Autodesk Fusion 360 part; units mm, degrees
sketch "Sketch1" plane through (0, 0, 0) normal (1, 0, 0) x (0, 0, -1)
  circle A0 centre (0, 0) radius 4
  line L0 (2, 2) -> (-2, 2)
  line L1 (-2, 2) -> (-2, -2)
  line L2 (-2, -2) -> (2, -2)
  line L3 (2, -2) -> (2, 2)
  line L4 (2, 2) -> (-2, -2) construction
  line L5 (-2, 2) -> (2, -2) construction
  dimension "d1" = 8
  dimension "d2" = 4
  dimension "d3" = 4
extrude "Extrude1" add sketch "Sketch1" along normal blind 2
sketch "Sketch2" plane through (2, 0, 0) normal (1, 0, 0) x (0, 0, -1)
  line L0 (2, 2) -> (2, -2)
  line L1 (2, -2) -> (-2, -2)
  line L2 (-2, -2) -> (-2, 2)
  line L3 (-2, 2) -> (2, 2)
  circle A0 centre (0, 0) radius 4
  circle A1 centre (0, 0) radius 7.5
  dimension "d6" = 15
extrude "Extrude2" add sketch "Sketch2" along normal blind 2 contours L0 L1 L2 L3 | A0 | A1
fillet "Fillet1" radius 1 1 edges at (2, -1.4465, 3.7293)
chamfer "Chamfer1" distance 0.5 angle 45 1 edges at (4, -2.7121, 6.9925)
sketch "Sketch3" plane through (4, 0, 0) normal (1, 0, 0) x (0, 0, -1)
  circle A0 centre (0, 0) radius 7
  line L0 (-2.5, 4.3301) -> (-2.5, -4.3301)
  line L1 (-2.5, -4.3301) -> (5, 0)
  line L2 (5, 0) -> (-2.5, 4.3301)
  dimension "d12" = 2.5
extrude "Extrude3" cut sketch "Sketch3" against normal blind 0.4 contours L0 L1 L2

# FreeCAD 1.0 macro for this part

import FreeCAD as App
import Part
import Sketcher

V = App.Vector
Q = App.Units.Quantity


def edges_at(feature, points):
    """Names of the edges that pass closest to the given points."""
    edges = feature.Shape.Edges
    near = lambda p: min(range(len(edges)), key=lambda i: edges[i].distToShape(Part.Vertex(*p))[0])
    return sorted({f"Edge{near(p) + 1}" for p in points})

doc = App.newDocument("Part")
params = doc.addObject("Spreadsheet::Sheet", "Params")
for row, (alias, value) in enumerate([
    ("sketch1_diameter", "8 mm"),
    ("sketch1_width", "4 mm"),
    ("pad1_length", "2 mm"),
    ("sketch2_diameter", "15 mm"),
    ("pad2_length", "2 mm"),
    ("fillet_radius", "1 mm"),
    ("chamfer_size", "0.5 mm"),
    ("pocket1_length", "0.4 mm"),
], start=1):
    params.set(f"A{row}", alias)
    params.set(f"B{row}", "=" + value)
    params.setAlias(f"B{row}", alias)

body = doc.addObject("PartDesign::Body", "Body")

# Sketch on YZ plane
sketch1 = body.newObject("Sketcher::SketchObject", "Sketch")
sketch1.AttachmentSupport = (doc.getObject("YZ_Plane"), [""])
sketch1.MapMode = "FlatFace"
sketch1.addGeometry(Part.Circle(V(0, 0, 0), V(0, 0, 1), 4), False)
sketch1.addGeometry(Part.LineSegment(V(2, 2, 0), V(2, -2, 0)), False)
sketch1.addGeometry(Part.LineSegment(V(2, -2, 0), V(-2, -2, 0)), False)
sketch1.addGeometry(Part.LineSegment(V(-2, -2, 0), V(-2, 2, 0)), False)
sketch1.addGeometry(Part.LineSegment(V(-2, 2, 0), V(2, 2, 0)), False)
sketch1.addConstraint(Sketcher.Constraint("Coincident", 1, 2, 2, 1))
sketch1.addConstraint(Sketcher.Constraint("Coincident", 2, 2, 3, 1))
sketch1.addConstraint(Sketcher.Constraint("Coincident", 3, 2, 4, 1))
sketch1.addConstraint(Sketcher.Constraint("Coincident", 4, 2, 1, 1))
sketch1.addConstraint(Sketcher.Constraint("Vertical", 1))
sketch1.addConstraint(Sketcher.Constraint("Horizontal", 2))
sketch1.addConstraint(Sketcher.Constraint("Vertical", 3))
sketch1.addConstraint(Sketcher.Constraint("Horizontal", 4))
sketch1.addConstraint(Sketcher.Constraint("Coincident", 0, 3, -1, 1))
sketch1.addConstraint(Sketcher.Constraint("Symmetric", 1, 2, 3, 2, -1, 1))
sketch1.addConstraint(Sketcher.Constraint("Equal", 4, 1))
sketch1.addConstraint(Sketcher.Constraint("Diameter", 0, 8.0))
sketch1.addConstraint(Sketcher.Constraint("DistanceX", 2, 2, 2, 1, 4.0))
sketch1.setExpression("Constraints[11]", "Params.sketch1_diameter")
sketch1.setExpression("Constraints[12]", "Params.sketch1_width")
pad1 = body.newObject("PartDesign::Pad", "Pad")
pad1.Profile = sketch1
pad1.setExpression("Length", "Params.pad1_length")

# Sketch on YZ plane
sketch2 = body.newObject("Sketcher::SketchObject", "Sketch001")
sketch2.AttachmentSupport = (doc.getObject("YZ_Plane"), [""])
sketch2.MapMode = "FlatFace"
sketch2.AttachmentOffset = App.Placement(V(0, 0, 2), App.Rotation())
sketch2.addGeometry(Part.Circle(V(0, 0, 0), V(0, 0, 1), 7.5), False)
sketch2.addConstraint(Sketcher.Constraint("Coincident", 0, 3, -1, 1))
sketch2.addConstraint(Sketcher.Constraint("Diameter", 0, 15.0))
sketch2.setExpression("Constraints[1]", "Params.sketch2_diameter")
pad2 = body.newObject("PartDesign::Pad", "Pad001")
pad2.Profile = sketch2
pad2.setExpression("Length", "Params.pad2_length")
doc.recompute()

fillet = body.newObject("PartDesign::Fillet", "Fillet")
fillet.Base = (pad2, edges_at(pad2, [(2, -1.446, 3.729)]))
fillet.setExpression("Radius", "Params.fillet_radius")
doc.recompute()

chamfer = body.newObject("PartDesign::Chamfer", "Chamfer")
chamfer.Base = (fillet, edges_at(fillet, [(4, -2.712, 6.992)]))
chamfer.setExpression("Size", "Params.chamfer_size")

# Sketch on YZ plane
sketch3 = body.newObject("Sketcher::SketchObject", "Sketch002")
sketch3.AttachmentSupport = (doc.getObject("YZ_Plane"), [""])
sketch3.MapMode = "FlatFace"
sketch3.AttachmentOffset = App.Placement(V(0, 0, 4), App.Rotation())
sketch3.addGeometry(Part.LineSegment(V(0, -5, 0), V(4.3301, 2.5, 0)), False)
sketch3.addGeometry(Part.LineSegment(V(4.3301, 2.5, 0), V(-4.3301, 2.5, 0)), False)
sketch3.addGeometry(Part.LineSegment(V(-4.3301, 2.5, 0), V(0, -5, 0)), False)
sketch3.addConstraint(Sketcher.Constraint("Coincident", 0, 2, 1, 1))
sketch3.addConstraint(Sketcher.Constraint("Coincident", 1, 2, 2, 1))
sketch3.addConstraint(Sketcher.Constraint("Coincident", 2, 2, 0, 1))
sketch3.addConstraint(Sketcher.Constraint("Horizontal", 1))
sketch3.addConstraint(Sketcher.Constraint("PointOnObject", 2, 2, -2))
sketch3.addConstraint(Sketcher.Constraint("Equal", 0, 2))
sketch3.addConstraint(Sketcher.Constraint("DistanceY", -1, 1, 0, 2, 2.5))
sketch3.addConstraint(Sketcher.Constraint("Angle", 0, Q("60.0002 deg")))
sketch3.addConstraint(Sketcher.Constraint("DistanceY", 2, 2, -1, 1, 5.0))
pocket1 = body.newObject("PartDesign::Pocket", "Pocket")
pocket1.Profile = sketch3
pocket1.setExpression("Length", "Params.pocket1_length")

doc.recompute()
